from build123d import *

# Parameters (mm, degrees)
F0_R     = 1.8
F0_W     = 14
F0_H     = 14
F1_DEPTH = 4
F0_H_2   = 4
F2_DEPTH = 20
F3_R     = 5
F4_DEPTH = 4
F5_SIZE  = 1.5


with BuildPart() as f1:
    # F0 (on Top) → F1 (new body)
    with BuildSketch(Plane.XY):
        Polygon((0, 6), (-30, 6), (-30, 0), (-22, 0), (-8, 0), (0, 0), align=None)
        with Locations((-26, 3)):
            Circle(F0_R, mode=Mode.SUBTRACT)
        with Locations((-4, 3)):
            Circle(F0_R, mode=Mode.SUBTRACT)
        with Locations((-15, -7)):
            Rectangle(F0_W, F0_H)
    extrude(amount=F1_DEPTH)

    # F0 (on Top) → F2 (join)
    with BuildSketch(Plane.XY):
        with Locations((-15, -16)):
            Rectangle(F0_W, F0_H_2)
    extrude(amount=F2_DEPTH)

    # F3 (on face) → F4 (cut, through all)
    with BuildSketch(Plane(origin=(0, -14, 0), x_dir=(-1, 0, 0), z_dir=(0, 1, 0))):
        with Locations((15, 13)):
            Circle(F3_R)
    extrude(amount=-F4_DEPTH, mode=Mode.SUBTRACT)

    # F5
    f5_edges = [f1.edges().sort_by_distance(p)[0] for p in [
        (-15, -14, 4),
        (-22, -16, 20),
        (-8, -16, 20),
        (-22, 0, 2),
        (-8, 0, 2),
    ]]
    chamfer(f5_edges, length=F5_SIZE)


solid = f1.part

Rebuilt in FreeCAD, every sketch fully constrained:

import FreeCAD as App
import Part
import Sketcher


def edges_at(feature, points):
    """Names of the edges that pass closest to the given points."""
    edges = feature.Shape.Edges
    near = lambda p: min(range(len(edges)), key=lambda i: edges[i].distToShape(Part.Vertex(*p))[0])
    return sorted({f"Edge{near(p) + 1}" for p in points})

doc = App.newDocument("Part")
params = doc.addObject("Spreadsheet::Sheet", "Params")
for row, (alias, value) in enumerate([
    ("sketch1_diameter", "3.6 mm"),
    ("sketch1_width", "30 mm"),
    ("sketch1_width2", "8 mm"),
    ("sketch1_height", "6 mm"),
    ("pad1_length", "4 mm"),
    ("sketch2_width", "14 mm"),
    ("sketch2_height", "4 mm"),
    ("pad2_length", "20 mm"),
    ("sketch3_diameter", "10 mm"),
    ("chamfer_size", "1.5 mm"),
], start=1):
    params.set(f"A{row}", alias)
    params.set(f"B{row}", "=" + value)
    params.setAlias(f"B{row}", alias)

body = doc.addObject("PartDesign::Body", "Body")

# Sketch on XY plane
sketch1 = doc.addObject("Sketcher::SketchObject", "Sketch")
body.addObject(sketch1)
sketch1.AttachmentSupport = (doc.XY_Plane, [""])
sketch1.MapMode = "FlatFace"
sketch1.addGeometry([
    Part.LineSegment(App.Vector(0, 6, 0), App.Vector(-30, 6, 0)),  # 0
    Part.LineSegment(App.Vector(-30, 6, 0), App.Vector(-30, 0, 0)),  # 1
    Part.LineSegment(App.Vector(-30, 0, 0), App.Vector(-22, 0, 0)),  # 2
    Part.LineSegment(App.Vector(-22, 0, 0), App.Vector(-22, -14, 0)),  # 3
    Part.LineSegment(App.Vector(-22, -14, 0), App.Vector(-8, -14, 0)),  # 4
    Part.LineSegment(App.Vector(-8, -14, 0), App.Vector(-8, 0, 0)),  # 5
    Part.LineSegment(App.Vector(-8, 0, 0), App.Vector(0, 0, 0)),  # 6
    Part.LineSegment(App.Vector(0, 0, 0), App.Vector(0, 6, 0)),  # 7
    Part.Circle(App.Vector(-26, 3, 0), App.Vector(0, 0, 1), 1.8),  # 8
    Part.Circle(App.Vector(-4, 3, 0), App.Vector(0, 0, 1), 1.8),  # 9
], False)
sketch1.addConstraint([
    Sketcher.Constraint("Coincident", 0, 2, 1, 1),
    Sketcher.Constraint("Coincident", 1, 2, 2, 1),
    Sketcher.Constraint("Coincident", 2, 2, 3, 1),
    Sketcher.Constraint("Coincident", 3, 2, 4, 1),
    Sketcher.Constraint("Coincident", 4, 2, 5, 1),
    Sketcher.Constraint("Coincident", 5, 2, 6, 1),
    Sketcher.Constraint("Coincident", 6, 2, 7, 1),
    Sketcher.Constraint("Coincident", 7, 2, 0, 1),
    Sketcher.Constraint("Horizontal", 0),
    Sketcher.Constraint("Vertical", 1),
    Sketcher.Constraint("Horizontal", 2),
    Sketcher.Constraint("Vertical", 3),
    Sketcher.Constraint("Horizontal", 4),
    Sketcher.Constraint("Vertical", 5),
    Sketcher.Constraint("Horizontal", 6),
    Sketcher.Constraint("Vertical", 7),
    Sketcher.Constraint("Coincident", 6, 2, -1, 1),
    Sketcher.Constraint("Equal", 8, 9),
    Sketcher.Constraint("PointOnObject", 1, 2, -1),
    Sketcher.Constraint("Horizontal", 8, 3, 9, 3),
    Sketcher.Constraint("Equal", 2, 6),
    Sketcher.Constraint("Equal", 4, 3),
    Sketcher.Constraint("Diameter", 8, 3.6),
    Sketcher.Constraint("DistanceX", 0, 2, 0, 1, 30.0),
    Sketcher.Constraint("DistanceX", 2, 1, 2, 2, 8.0),
    Sketcher.Constraint("DistanceY", 1, 2, 1, 1, 6.0),
    Sketcher.Constraint("DistanceX", 8, 3, -1, 1, 26.0),
    Sketcher.Constraint("DistanceY", -1, 1, 8, 3, 3.0),
    Sketcher.Constraint("DistanceX", 9, 3, -1, 1, 4.0),
])
sketch1.setExpression("Constraints[22]", "Params.sketch1_diameter")
sketch1.setExpression("Constraints[23]", "Params.sketch1_width")
sketch1.setExpression("Constraints[24]", "Params.sketch1_width2")
sketch1.setExpression("Constraints[25]", "Params.sketch1_height")
pad1 = doc.addObject("PartDesign::Pad", "Pad")
body.addObject(pad1)
pad1.Profile = sketch1
pad1.setExpression("Length", "Params.pad1_length")

# Sketch on XY plane
sketch2 = doc.addObject("Sketcher::SketchObject", "Sketch001")
body.addObject(sketch2)
sketch2.AttachmentSupport = (doc.XY_Plane, [""])
sketch2.MapMode = "FlatFace"
sketch2.addGeometry([
    Part.LineSegment(App.Vector(-22, -14, 0), App.Vector(-22, -18, 0)),
    Part.LineSegment(App.Vector(-22, -18, 0), App.Vector(-8, -18, 0)),
    Part.LineSegment(App.Vector(-8, -18, 0), App.Vector(-8, -14, 0)),
    Part.LineSegment(App.Vector(-8, -14, 0), App.Vector(-22, -14, 0)),
], False)
sketch2.addConstraint([
    Sketcher.Constraint("Coincident", 0, 2, 1, 1),
    Sketcher.Constraint("Coincident", 1, 2, 2, 1),
    Sketcher.Constraint("Coincident", 2, 2, 3, 1),
    Sketcher.Constraint("Coincident", 3, 2, 0, 1),
    Sketcher.Constraint("Vertical", 0),
    Sketcher.Constraint("Horizontal", 1),
    Sketcher.Constraint("Vertical", 2),
    Sketcher.Constraint("Horizontal", 3),
    Sketcher.Constraint("DistanceX", 1, 1, 1, 2, 14.0),
    Sketcher.Constraint("DistanceY", 0, 2, 0, 1, 4.0),
    Sketcher.Constraint("DistanceX", 0, 2, -1, 1, 22.0),
    Sketcher.Constraint("DistanceY", 0, 2, -1, 1, 18.0),
])
sketch2.setExpression("Constraints[8]", "Params.sketch2_width")
sketch2.setExpression("Constraints[9]", "Params.sketch2_height")
pad2 = doc.addObject("PartDesign::Pad", "Pad001")
body.addObject(pad2)
pad2.Profile = sketch2
pad2.setExpression("Length", "Params.pad2_length")

# Sketch on XZ plane
sketch3 = doc.addObject("Sketcher::SketchObject", "Sketch002")
body.addObject(sketch3)
sketch3.AttachmentSupport = (doc.XZ_Plane, [""])
sketch3.MapMode = "FlatFace"
sketch3.AttachmentOffset = App.Placement(App.Vector(0, 0, 14), App.Rotation())
sketch3.addGeometry(Part.Circle(App.Vector(-15, 13, 0), App.Vector(0, 0, 1), 5), False)
sketch3.addConstraint([
    Sketcher.Constraint("Diameter", 0, 10.0),
    Sketcher.Constraint("DistanceX", 0, 3, -1, 1, 15.0),
    Sketcher.Constraint("DistanceY", -1, 1, 0, 3, 13.0),
])
sketch3.setExpression("Constraints[0]", "Params.sketch3_diameter")
pocket1 = doc.addObject("PartDesign::Pocket", "Pocket")
body.addObject(pocket1)
pocket1.Profile = sketch3
pocket1.Type = "ThroughAll"
pocket1.Reversed = True
doc.recompute()

chamfer = doc.addObject("PartDesign::Chamfer", "Chamfer")
body.addObject(chamfer)
chamfer.Base = (pocket1, edges_at(pocket1, [
    (-15, -14, 4),
    (-22, -16, 20),
    (-8, -16, 20),
    (-22, 0, 2),
    (-8, 0, 2),
]))
chamfer.setExpression("Size", "Params.chamfer_size")

doc.recompute()
